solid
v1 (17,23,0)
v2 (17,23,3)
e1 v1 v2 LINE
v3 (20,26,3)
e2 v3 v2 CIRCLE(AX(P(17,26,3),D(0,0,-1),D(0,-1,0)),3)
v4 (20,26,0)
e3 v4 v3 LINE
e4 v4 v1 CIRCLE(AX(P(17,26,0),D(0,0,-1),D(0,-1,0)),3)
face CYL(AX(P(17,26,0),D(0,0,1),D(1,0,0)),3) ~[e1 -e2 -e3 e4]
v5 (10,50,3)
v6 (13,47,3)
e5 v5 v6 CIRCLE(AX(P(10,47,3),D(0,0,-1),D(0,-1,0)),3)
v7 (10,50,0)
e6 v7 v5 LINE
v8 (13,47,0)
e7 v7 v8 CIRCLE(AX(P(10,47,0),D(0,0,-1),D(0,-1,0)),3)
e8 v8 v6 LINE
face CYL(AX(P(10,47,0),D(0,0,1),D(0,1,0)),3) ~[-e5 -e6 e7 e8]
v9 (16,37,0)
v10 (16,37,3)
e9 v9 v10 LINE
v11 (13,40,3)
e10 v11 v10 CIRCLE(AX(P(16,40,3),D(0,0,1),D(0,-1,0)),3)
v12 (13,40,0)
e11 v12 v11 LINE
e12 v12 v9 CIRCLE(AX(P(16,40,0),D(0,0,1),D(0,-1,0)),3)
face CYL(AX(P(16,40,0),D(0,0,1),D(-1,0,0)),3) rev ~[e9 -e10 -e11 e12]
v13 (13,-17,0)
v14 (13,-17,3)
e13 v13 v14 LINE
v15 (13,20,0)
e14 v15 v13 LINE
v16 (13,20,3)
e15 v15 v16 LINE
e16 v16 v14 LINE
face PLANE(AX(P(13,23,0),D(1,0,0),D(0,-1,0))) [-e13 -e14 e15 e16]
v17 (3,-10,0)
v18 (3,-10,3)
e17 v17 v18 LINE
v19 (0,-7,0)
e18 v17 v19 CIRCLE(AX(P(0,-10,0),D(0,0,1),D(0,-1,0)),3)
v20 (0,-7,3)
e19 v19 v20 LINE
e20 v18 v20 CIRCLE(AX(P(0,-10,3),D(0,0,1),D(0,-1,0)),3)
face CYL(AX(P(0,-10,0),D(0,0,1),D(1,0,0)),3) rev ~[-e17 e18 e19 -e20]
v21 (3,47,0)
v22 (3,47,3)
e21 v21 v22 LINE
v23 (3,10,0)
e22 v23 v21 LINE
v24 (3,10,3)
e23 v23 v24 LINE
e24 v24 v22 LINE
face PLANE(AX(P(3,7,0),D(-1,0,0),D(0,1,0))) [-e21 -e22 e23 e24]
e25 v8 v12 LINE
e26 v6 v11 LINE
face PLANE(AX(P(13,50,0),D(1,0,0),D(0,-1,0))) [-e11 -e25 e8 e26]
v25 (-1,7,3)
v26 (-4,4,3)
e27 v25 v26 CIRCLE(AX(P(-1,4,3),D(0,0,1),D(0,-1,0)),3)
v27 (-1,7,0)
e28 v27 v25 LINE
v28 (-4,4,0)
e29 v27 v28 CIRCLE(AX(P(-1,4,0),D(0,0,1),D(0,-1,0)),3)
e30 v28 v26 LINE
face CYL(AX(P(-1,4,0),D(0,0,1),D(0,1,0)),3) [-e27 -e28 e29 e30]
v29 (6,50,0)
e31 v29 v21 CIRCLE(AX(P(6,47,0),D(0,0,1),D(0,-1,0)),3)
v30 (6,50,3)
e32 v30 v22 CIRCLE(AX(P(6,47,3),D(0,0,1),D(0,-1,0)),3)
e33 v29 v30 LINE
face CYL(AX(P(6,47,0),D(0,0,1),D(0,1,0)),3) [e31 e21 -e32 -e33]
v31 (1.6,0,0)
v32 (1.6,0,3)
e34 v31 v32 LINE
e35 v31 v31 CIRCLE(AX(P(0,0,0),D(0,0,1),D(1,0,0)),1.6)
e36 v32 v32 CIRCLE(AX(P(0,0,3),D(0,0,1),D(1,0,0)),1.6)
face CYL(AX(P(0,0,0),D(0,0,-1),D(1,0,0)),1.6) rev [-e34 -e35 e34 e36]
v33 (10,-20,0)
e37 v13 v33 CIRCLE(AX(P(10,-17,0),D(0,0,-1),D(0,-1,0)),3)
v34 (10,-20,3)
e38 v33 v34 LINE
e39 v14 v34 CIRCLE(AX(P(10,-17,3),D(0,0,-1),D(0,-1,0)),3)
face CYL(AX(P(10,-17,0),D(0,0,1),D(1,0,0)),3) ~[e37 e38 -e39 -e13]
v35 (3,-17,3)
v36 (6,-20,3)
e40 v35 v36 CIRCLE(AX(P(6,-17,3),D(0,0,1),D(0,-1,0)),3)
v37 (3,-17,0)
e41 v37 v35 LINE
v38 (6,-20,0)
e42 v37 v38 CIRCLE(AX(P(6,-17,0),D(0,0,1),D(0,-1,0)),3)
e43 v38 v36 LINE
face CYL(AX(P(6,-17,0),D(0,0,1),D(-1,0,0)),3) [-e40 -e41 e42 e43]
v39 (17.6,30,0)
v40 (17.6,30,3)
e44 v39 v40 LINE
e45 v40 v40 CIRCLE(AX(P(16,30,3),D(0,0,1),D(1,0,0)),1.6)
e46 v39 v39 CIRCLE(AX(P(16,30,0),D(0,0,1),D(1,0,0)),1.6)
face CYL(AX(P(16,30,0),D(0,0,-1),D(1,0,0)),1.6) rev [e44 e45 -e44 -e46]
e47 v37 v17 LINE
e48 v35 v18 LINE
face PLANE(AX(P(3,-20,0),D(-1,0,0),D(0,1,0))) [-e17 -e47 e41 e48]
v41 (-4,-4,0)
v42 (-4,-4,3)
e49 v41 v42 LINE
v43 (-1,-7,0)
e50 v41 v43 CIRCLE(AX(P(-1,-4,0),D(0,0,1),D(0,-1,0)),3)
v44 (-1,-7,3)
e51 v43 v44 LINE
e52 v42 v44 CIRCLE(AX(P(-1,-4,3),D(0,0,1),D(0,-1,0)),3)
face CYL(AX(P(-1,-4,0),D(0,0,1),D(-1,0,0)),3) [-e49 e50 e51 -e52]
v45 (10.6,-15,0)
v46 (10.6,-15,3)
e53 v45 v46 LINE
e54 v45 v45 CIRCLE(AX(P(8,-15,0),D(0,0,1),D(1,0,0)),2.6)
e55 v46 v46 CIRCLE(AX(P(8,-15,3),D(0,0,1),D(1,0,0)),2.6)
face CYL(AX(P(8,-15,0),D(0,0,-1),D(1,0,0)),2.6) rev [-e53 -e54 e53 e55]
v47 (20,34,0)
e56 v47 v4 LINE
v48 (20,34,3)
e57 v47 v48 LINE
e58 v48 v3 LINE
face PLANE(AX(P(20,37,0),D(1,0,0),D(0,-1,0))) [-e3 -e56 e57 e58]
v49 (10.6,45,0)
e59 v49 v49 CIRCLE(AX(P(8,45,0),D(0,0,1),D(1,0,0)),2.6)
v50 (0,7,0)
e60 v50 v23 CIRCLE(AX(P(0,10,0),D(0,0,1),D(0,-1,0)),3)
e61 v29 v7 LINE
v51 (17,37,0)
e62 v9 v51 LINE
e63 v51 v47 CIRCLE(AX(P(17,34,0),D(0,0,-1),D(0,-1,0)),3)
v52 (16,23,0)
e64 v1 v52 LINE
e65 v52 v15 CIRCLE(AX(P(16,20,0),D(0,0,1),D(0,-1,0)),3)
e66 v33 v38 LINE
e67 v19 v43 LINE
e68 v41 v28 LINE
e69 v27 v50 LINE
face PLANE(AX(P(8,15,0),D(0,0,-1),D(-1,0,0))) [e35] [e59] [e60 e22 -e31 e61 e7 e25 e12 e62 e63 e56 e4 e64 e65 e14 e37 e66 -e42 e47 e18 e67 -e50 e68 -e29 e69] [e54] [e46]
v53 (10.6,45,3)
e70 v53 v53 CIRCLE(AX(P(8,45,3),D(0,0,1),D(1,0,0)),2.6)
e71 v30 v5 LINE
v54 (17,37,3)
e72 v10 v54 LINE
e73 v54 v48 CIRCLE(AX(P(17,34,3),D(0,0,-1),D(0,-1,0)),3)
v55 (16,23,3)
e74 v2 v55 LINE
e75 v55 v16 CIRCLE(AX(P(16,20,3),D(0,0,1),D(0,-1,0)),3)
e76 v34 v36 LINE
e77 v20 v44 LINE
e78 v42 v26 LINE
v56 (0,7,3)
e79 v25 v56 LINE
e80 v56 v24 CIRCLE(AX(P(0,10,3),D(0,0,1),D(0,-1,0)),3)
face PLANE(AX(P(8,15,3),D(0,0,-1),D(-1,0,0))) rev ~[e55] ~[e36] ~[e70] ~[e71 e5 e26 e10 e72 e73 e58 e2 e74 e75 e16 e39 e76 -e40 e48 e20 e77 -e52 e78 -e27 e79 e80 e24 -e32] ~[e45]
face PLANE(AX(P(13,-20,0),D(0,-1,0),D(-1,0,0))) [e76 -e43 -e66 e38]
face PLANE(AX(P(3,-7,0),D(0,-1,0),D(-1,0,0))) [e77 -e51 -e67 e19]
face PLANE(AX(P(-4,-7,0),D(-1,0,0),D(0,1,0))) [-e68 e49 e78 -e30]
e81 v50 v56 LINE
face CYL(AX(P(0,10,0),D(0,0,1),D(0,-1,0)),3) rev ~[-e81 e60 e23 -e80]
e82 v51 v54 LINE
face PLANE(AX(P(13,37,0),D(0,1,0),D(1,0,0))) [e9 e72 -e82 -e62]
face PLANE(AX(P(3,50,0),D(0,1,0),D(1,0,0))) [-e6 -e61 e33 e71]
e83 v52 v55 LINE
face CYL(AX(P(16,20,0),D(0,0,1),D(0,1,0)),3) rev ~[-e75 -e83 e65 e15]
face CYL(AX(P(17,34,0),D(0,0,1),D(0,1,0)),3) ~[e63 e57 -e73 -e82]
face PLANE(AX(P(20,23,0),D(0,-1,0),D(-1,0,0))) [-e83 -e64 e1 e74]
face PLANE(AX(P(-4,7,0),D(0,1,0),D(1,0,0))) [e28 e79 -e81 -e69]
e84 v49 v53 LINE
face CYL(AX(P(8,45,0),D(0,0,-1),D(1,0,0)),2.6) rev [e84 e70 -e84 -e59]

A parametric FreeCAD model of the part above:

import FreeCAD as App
import Part
import Sketcher
from FreeCAD import Vector
Q = App.Units.Quantity


def edges_at(feature, points):
    """Names of the edges that pass closest to the given points."""
    edges = feature.Shape.Edges
    near = lambda p: min(range(len(edges)), key=lambda i: edges[i].distToShape(Part.Vertex(*p))[0])
    return sorted({f"Edge{near(p) + 1}" for p in points})


def add_polygon(sketch, points):
    """Adds a closed chain of lines whose ends are joined by coincident constraints."""
    first, n = sketch.GeometryCount, len(points)
    for a, b in zip(points, points[1:] + points[:1]):
        sketch.addGeometry(Part.LineSegment(App.Vector(*a, 0), App.Vector(*b, 0)), False)
    for i in range(n):
        sketch.addConstraint(Sketcher.Constraint("Coincident", first + i, 2, first + (i + 1) % n, 1))

doc = App.newDocument("Part")
params = doc.addObject("Spreadsheet::Sheet", "Params")
for row, (alias, value) in enumerate([
    ("sketch1_diameter", "5.2 mm"),
    ("sketch1_diameter2", "3.2 mm"),
    ("sketch1_width", "10 mm"),
    ("sketch1_width2", "7 mm"),
    ("sketch1_height", "43 mm"),
    ("pad1_length", "3 mm"),
    ("fillet_radius", "3 mm"),
    ("fillet2_radius", "3 mm"),
    ("fillet3_radius", "3 mm"),
    ("fillet4_radius", "3 mm"),
    ("fillet5_radius", "3 mm"),
], start=1):
    params.set(f"A{row}", alias)
    params.set(f"B{row}", "=" + value)
    params.setAlias(f"B{row}", alias)

body = doc.addObject("PartDesign::Body", "Body")

# Sketch on XY plane
sketch1 = body.newObject("Sketcher::SketchObject", "Sketch")
sketch1.AttachmentSupport = (doc.getObject("XY_Plane"), [""])
sketch1.MapMode = "FlatFace"
add_polygon(sketch1, [(13, 50), (3, 50), (3, 7), (-4, 7), (-4, -7), (3, -7), (3, -20), (13, -20), (13, 23), (20, 23), (20, 37), (13, 37)])  # lines 0-11
sketch1.addGeometry(Part.Circle(Vector(8, -15, 0), Vector(0, 0, 1), 2.6), False)  # 12
sketch1.addGeometry(Part.Circle(Vector(0, 0, 0), Vector(0, 0, 1), 1.6), False)  # 13
sketch1.addGeometry(Part.Circle(Vector(16, 30, 0), Vector(0, 0, 1), 1.6), False)  # 14
sketch1.addGeometry(Part.Circle(Vector(8, 45, 0), Vector(0, 0, 1), 2.6), False)  # 15
sketch1.addConstraint(Sketcher.Constraint("Horizontal", 0))
sketch1.addConstraint(Sketcher.Constraint("Vertical", 1))
sketch1.addConstraint(Sketcher.Constraint("Horizontal", 2))
sketch1.addConstraint(Sketcher.Constraint("Vertical", 3))
sketch1.addConstraint(Sketcher.Constraint("Horizontal", 4))
sketch1.addConstraint(Sketcher.Constraint("Vertical", 5))
sketch1.addConstraint(Sketcher.Constraint("Horizontal", 6))
sketch1.addConstraint(Sketcher.Constraint("Vertical", 7))
sketch1.addConstraint(Sketcher.Constraint("Horizontal", 8))
sketch1.addConstraint(Sketcher.Constraint("Vertical", 9))
sketch1.addConstraint(Sketcher.Constraint("Horizontal", 10))
sketch1.addConstraint(Sketcher.Constraint("Vertical", 11))
sketch1.addConstraint(Sketcher.Constraint("Coincident", 13, 3, -1, 1))
sketch1.addConstraint(Sketcher.Constraint("Equal", 13, 14))
sketch1.addConstraint(Sketcher.Constraint("Equal", 12, 15))
sketch1.addConstraint(Sketcher.Constraint("Symmetric", 1, 2, 4, 2, -1))
sketch1.addConstraint(Sketcher.Constraint("Vertical", 12, 3, 15, 3))
sketch1.addConstraint(Sketcher.Constraint("Vertical", 7, 2, 10, 2))
sketch1.addConstraint(Sketcher.Constraint("Equal", 4, 8))
sketch1.addConstraint(Sketcher.Constraint("Equal", 1, 7))
sketch1.addConstraint(Sketcher.Constraint("Equal", 3, 9))
sketch1.addConstraint(Sketcher.Constraint("Diameter", 12, Q("5.2 mm")))
sketch1.addConstraint(Sketcher.Constraint("Diameter", 13, Q("3.2 mm")))
sketch1.addConstraint(Sketcher.Constraint("DistanceX", 0, 2, 0, 1, Q("10 mm")))
sketch1.addConstraint(Sketcher.Constraint("DistanceX", 2, 2, 2, 1, Q("7 mm")))
sketch1.addConstraint(Sketcher.Constraint("DistanceY", 1, 2, 1, 1, Q("43 mm")))
sketch1.addConstraint(Sketcher.Constraint("DistanceY", 3, 2, 3, 1, Q("14 mm")))
sketch1.addConstraint(Sketcher.Constraint("DistanceY", 5, 2, 5, 1, Q("13 mm")))
sketch1.addConstraint(Sketcher.Constraint("DistanceX", -1, 1, 12, 3, Q("8 mm")))
sketch1.addConstraint(Sketcher.Constraint("DistanceY", 12, 3, -1, 1, Q("15 mm")))
sketch1.addConstraint(Sketcher.Constraint("DistanceX", -1, 1, 14, 3, Q("16 mm")))
sketch1.addConstraint(Sketcher.Constraint("DistanceY", -1, 1, 14, 3, Q("30 mm")))
sketch1.addConstraint(Sketcher.Constraint("DistanceY", -1, 1, 15, 3, Q("45 mm")))
sketch1.addConstraint(Sketcher.Constraint("DistanceX", -1, 1, 0, 2, Q("3 mm")))
sketch1.setExpression("Constraints[33]", "Params.sketch1_diameter")
sketch1.setExpression("Constraints[34]", "Params.sketch1_diameter2")
sketch1.setExpression("Constraints[35]", "Params.sketch1_width")
sketch1.setExpression("Constraints[36]", "Params.sketch1_width2")
sketch1.setExpression("Constraints[37]", "Params.sketch1_height")
pad1 = body.newObject("PartDesign::Pad", "Pad")
pad1.Profile = sketch1
pad1.setExpression("Length", "Params.pad1_length")
doc.recompute()

fillet = body.newObject("PartDesign::Fillet", "Fillet")
fillet.Base = (pad1, edges_at(pad1, [
    (13, -20, 1.5),
    (3, -20, 1.5),
    (20, 23, 1.5),
    (20, 37, 1.5),
    (-4, -7, 1.5),
    (-4, 7, 1.5),
    (3, 50, 1.5),
    (13, 50, 1.5),
]))
fillet.setExpression("Radius", "Params.fillet_radius")
doc.recompute()

fillet2 = body.newObject("PartDesign::Fillet", "Fillet001")
fillet2.Base = (fillet, edges_at(fillet, [(13, 37, 1.5)]))
fillet2.setExpression("Radius", "Params.fillet2_radius")
doc.recompute()

fillet3 = body.newObject("PartDesign::Fillet", "Fillet002")
fillet3.Base = (fillet2, edges_at(fillet2, [(13, 23, 1.5)]))
fillet3.setExpression("Radius", "Params.fillet3_radius")
doc.recompute()

fillet4 = body.newObject("PartDesign::Fillet", "Fillet003")
fillet4.Base = (fillet3, edges_at(fillet3, [(3, -7, 1.5)]))
fillet4.setExpression("Radius", "Params.fillet4_radius")
doc.recompute()

fillet5 = body.newObject("PartDesign::Fillet", "Fillet004")
fillet5.Base = (fillet4, edges_at(fillet4, [(3, 7, 1.5)]))
fillet5.setExpression("Radius", "Params.fillet5_radius")

doc.recompute()
